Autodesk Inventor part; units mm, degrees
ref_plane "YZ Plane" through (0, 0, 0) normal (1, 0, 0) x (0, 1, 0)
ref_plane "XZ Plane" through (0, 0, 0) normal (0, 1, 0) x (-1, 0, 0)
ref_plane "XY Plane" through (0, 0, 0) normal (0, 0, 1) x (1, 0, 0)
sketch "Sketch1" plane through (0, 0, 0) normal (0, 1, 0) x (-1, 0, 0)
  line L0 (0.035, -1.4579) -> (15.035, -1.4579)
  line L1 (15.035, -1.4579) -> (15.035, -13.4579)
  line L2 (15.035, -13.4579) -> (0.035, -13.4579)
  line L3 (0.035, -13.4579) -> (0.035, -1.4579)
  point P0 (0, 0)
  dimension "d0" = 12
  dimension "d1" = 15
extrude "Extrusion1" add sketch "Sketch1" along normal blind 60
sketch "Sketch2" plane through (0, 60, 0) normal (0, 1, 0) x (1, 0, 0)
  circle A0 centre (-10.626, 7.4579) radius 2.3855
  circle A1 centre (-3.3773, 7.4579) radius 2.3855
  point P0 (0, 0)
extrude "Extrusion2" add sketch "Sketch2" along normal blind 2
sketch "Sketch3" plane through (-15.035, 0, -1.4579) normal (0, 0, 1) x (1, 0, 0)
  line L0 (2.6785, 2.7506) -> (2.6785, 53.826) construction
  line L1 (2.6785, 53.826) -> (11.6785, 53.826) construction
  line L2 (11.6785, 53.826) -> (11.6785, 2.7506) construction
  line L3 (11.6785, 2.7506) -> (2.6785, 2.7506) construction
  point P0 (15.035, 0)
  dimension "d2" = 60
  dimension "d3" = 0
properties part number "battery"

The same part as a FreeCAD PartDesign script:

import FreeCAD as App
import Part
import Sketcher
from FreeCAD import Vector
Q = App.Units.Quantity


def add_polygon(sketch, points):
    """Adds a closed chain of lines whose ends are joined by coincident constraints."""
    first, n = sketch.GeometryCount, len(points)
    for a, b in zip(points, points[1:] + points[:1]):
        sketch.addGeometry(Part.LineSegment(App.Vector(*a, 0), App.Vector(*b, 0)), False)
    for i in range(n):
        sketch.addConstraint(Sketcher.Constraint("Coincident", first + i, 2, first + (i + 1) % n, 1))

doc = App.newDocument("Part")
body = doc.addObject("PartDesign::Body", "Body")

sketch1 = body.newObject("Sketcher::SketchObject", "Sketch")
sketch1.AttachmentSupport = (doc.getObject("XZ_Plane"), [""])
sketch1.MapMode = "FlatFace"
add_polygon(sketch1, [(-15.035, -1.4579), (-0.035, -1.4579), (-0.035, -13.4579), (-15.035, -13.4579)])
sketch1.addConstraint([
    Sketcher.Constraint("Horizontal", 0),
    Sketcher.Constraint("Vertical", 1),
    Sketcher.Constraint("Horizontal", 2),
    Sketcher.Constraint("Vertical", 3),
    Sketcher.Constraint("DistanceX", 0, 1, 0, 2, Q("15 mm")),
    Sketcher.Constraint("DistanceY", 1, 2, 1, 1, Q("12 mm")),
    Sketcher.Constraint("DistanceX", 0, 2, -1, 1, Q("0.035 mm")),
    Sketcher.Constraint("DistanceY", 0, 2, -1, 1, Q("1.458 mm")),
])
pad1 = body.newObject("PartDesign::Pad", "Pad")
pad1.Profile = sketch1
pad1.Length = 60
pad1.Reversed = True

sketch2 = body.newObject("Sketcher::SketchObject", "Sketch001")
sketch2.AttachmentSupport = (doc.getObject("XZ_Plane"), [""])
sketch2.MapMode = "FlatFace"
sketch2.AttachmentOffset = App.Placement(Vector(0, 0, -60), App.Rotation())
sketch2.addGeometry([
    Part.Circle(Vector(-10.626, -7.4579, 0), Vector(0, 0, 1), 2.3855),
    Part.Circle(Vector(-3.3773, -7.4579, 0), Vector(0, 0, 1), 2.3855),
], False)
sketch2.addConstraint([
    Sketcher.Constraint("Equal", 0, 1),
    Sketcher.Constraint("Horizontal", 0, 3, 1, 3),
    Sketcher.Constraint("Diameter", 0, Q("4.771 mm")),
    Sketcher.Constraint("DistanceX", 0, 3, -1, 1, Q("10.626 mm")),
    Sketcher.Constraint("DistanceY", 0, 3, -1, 1, Q("7.458 mm")),
    Sketcher.Constraint("DistanceX", 1, 3, -1, 1, Q("3.3773 mm")),
])
pad2 = body.newObject("PartDesign::Pad", "Pad001")
pad2.Profile = sketch2
pad2.Length = 2
pad2.Reversed = True

doc.recompute()
